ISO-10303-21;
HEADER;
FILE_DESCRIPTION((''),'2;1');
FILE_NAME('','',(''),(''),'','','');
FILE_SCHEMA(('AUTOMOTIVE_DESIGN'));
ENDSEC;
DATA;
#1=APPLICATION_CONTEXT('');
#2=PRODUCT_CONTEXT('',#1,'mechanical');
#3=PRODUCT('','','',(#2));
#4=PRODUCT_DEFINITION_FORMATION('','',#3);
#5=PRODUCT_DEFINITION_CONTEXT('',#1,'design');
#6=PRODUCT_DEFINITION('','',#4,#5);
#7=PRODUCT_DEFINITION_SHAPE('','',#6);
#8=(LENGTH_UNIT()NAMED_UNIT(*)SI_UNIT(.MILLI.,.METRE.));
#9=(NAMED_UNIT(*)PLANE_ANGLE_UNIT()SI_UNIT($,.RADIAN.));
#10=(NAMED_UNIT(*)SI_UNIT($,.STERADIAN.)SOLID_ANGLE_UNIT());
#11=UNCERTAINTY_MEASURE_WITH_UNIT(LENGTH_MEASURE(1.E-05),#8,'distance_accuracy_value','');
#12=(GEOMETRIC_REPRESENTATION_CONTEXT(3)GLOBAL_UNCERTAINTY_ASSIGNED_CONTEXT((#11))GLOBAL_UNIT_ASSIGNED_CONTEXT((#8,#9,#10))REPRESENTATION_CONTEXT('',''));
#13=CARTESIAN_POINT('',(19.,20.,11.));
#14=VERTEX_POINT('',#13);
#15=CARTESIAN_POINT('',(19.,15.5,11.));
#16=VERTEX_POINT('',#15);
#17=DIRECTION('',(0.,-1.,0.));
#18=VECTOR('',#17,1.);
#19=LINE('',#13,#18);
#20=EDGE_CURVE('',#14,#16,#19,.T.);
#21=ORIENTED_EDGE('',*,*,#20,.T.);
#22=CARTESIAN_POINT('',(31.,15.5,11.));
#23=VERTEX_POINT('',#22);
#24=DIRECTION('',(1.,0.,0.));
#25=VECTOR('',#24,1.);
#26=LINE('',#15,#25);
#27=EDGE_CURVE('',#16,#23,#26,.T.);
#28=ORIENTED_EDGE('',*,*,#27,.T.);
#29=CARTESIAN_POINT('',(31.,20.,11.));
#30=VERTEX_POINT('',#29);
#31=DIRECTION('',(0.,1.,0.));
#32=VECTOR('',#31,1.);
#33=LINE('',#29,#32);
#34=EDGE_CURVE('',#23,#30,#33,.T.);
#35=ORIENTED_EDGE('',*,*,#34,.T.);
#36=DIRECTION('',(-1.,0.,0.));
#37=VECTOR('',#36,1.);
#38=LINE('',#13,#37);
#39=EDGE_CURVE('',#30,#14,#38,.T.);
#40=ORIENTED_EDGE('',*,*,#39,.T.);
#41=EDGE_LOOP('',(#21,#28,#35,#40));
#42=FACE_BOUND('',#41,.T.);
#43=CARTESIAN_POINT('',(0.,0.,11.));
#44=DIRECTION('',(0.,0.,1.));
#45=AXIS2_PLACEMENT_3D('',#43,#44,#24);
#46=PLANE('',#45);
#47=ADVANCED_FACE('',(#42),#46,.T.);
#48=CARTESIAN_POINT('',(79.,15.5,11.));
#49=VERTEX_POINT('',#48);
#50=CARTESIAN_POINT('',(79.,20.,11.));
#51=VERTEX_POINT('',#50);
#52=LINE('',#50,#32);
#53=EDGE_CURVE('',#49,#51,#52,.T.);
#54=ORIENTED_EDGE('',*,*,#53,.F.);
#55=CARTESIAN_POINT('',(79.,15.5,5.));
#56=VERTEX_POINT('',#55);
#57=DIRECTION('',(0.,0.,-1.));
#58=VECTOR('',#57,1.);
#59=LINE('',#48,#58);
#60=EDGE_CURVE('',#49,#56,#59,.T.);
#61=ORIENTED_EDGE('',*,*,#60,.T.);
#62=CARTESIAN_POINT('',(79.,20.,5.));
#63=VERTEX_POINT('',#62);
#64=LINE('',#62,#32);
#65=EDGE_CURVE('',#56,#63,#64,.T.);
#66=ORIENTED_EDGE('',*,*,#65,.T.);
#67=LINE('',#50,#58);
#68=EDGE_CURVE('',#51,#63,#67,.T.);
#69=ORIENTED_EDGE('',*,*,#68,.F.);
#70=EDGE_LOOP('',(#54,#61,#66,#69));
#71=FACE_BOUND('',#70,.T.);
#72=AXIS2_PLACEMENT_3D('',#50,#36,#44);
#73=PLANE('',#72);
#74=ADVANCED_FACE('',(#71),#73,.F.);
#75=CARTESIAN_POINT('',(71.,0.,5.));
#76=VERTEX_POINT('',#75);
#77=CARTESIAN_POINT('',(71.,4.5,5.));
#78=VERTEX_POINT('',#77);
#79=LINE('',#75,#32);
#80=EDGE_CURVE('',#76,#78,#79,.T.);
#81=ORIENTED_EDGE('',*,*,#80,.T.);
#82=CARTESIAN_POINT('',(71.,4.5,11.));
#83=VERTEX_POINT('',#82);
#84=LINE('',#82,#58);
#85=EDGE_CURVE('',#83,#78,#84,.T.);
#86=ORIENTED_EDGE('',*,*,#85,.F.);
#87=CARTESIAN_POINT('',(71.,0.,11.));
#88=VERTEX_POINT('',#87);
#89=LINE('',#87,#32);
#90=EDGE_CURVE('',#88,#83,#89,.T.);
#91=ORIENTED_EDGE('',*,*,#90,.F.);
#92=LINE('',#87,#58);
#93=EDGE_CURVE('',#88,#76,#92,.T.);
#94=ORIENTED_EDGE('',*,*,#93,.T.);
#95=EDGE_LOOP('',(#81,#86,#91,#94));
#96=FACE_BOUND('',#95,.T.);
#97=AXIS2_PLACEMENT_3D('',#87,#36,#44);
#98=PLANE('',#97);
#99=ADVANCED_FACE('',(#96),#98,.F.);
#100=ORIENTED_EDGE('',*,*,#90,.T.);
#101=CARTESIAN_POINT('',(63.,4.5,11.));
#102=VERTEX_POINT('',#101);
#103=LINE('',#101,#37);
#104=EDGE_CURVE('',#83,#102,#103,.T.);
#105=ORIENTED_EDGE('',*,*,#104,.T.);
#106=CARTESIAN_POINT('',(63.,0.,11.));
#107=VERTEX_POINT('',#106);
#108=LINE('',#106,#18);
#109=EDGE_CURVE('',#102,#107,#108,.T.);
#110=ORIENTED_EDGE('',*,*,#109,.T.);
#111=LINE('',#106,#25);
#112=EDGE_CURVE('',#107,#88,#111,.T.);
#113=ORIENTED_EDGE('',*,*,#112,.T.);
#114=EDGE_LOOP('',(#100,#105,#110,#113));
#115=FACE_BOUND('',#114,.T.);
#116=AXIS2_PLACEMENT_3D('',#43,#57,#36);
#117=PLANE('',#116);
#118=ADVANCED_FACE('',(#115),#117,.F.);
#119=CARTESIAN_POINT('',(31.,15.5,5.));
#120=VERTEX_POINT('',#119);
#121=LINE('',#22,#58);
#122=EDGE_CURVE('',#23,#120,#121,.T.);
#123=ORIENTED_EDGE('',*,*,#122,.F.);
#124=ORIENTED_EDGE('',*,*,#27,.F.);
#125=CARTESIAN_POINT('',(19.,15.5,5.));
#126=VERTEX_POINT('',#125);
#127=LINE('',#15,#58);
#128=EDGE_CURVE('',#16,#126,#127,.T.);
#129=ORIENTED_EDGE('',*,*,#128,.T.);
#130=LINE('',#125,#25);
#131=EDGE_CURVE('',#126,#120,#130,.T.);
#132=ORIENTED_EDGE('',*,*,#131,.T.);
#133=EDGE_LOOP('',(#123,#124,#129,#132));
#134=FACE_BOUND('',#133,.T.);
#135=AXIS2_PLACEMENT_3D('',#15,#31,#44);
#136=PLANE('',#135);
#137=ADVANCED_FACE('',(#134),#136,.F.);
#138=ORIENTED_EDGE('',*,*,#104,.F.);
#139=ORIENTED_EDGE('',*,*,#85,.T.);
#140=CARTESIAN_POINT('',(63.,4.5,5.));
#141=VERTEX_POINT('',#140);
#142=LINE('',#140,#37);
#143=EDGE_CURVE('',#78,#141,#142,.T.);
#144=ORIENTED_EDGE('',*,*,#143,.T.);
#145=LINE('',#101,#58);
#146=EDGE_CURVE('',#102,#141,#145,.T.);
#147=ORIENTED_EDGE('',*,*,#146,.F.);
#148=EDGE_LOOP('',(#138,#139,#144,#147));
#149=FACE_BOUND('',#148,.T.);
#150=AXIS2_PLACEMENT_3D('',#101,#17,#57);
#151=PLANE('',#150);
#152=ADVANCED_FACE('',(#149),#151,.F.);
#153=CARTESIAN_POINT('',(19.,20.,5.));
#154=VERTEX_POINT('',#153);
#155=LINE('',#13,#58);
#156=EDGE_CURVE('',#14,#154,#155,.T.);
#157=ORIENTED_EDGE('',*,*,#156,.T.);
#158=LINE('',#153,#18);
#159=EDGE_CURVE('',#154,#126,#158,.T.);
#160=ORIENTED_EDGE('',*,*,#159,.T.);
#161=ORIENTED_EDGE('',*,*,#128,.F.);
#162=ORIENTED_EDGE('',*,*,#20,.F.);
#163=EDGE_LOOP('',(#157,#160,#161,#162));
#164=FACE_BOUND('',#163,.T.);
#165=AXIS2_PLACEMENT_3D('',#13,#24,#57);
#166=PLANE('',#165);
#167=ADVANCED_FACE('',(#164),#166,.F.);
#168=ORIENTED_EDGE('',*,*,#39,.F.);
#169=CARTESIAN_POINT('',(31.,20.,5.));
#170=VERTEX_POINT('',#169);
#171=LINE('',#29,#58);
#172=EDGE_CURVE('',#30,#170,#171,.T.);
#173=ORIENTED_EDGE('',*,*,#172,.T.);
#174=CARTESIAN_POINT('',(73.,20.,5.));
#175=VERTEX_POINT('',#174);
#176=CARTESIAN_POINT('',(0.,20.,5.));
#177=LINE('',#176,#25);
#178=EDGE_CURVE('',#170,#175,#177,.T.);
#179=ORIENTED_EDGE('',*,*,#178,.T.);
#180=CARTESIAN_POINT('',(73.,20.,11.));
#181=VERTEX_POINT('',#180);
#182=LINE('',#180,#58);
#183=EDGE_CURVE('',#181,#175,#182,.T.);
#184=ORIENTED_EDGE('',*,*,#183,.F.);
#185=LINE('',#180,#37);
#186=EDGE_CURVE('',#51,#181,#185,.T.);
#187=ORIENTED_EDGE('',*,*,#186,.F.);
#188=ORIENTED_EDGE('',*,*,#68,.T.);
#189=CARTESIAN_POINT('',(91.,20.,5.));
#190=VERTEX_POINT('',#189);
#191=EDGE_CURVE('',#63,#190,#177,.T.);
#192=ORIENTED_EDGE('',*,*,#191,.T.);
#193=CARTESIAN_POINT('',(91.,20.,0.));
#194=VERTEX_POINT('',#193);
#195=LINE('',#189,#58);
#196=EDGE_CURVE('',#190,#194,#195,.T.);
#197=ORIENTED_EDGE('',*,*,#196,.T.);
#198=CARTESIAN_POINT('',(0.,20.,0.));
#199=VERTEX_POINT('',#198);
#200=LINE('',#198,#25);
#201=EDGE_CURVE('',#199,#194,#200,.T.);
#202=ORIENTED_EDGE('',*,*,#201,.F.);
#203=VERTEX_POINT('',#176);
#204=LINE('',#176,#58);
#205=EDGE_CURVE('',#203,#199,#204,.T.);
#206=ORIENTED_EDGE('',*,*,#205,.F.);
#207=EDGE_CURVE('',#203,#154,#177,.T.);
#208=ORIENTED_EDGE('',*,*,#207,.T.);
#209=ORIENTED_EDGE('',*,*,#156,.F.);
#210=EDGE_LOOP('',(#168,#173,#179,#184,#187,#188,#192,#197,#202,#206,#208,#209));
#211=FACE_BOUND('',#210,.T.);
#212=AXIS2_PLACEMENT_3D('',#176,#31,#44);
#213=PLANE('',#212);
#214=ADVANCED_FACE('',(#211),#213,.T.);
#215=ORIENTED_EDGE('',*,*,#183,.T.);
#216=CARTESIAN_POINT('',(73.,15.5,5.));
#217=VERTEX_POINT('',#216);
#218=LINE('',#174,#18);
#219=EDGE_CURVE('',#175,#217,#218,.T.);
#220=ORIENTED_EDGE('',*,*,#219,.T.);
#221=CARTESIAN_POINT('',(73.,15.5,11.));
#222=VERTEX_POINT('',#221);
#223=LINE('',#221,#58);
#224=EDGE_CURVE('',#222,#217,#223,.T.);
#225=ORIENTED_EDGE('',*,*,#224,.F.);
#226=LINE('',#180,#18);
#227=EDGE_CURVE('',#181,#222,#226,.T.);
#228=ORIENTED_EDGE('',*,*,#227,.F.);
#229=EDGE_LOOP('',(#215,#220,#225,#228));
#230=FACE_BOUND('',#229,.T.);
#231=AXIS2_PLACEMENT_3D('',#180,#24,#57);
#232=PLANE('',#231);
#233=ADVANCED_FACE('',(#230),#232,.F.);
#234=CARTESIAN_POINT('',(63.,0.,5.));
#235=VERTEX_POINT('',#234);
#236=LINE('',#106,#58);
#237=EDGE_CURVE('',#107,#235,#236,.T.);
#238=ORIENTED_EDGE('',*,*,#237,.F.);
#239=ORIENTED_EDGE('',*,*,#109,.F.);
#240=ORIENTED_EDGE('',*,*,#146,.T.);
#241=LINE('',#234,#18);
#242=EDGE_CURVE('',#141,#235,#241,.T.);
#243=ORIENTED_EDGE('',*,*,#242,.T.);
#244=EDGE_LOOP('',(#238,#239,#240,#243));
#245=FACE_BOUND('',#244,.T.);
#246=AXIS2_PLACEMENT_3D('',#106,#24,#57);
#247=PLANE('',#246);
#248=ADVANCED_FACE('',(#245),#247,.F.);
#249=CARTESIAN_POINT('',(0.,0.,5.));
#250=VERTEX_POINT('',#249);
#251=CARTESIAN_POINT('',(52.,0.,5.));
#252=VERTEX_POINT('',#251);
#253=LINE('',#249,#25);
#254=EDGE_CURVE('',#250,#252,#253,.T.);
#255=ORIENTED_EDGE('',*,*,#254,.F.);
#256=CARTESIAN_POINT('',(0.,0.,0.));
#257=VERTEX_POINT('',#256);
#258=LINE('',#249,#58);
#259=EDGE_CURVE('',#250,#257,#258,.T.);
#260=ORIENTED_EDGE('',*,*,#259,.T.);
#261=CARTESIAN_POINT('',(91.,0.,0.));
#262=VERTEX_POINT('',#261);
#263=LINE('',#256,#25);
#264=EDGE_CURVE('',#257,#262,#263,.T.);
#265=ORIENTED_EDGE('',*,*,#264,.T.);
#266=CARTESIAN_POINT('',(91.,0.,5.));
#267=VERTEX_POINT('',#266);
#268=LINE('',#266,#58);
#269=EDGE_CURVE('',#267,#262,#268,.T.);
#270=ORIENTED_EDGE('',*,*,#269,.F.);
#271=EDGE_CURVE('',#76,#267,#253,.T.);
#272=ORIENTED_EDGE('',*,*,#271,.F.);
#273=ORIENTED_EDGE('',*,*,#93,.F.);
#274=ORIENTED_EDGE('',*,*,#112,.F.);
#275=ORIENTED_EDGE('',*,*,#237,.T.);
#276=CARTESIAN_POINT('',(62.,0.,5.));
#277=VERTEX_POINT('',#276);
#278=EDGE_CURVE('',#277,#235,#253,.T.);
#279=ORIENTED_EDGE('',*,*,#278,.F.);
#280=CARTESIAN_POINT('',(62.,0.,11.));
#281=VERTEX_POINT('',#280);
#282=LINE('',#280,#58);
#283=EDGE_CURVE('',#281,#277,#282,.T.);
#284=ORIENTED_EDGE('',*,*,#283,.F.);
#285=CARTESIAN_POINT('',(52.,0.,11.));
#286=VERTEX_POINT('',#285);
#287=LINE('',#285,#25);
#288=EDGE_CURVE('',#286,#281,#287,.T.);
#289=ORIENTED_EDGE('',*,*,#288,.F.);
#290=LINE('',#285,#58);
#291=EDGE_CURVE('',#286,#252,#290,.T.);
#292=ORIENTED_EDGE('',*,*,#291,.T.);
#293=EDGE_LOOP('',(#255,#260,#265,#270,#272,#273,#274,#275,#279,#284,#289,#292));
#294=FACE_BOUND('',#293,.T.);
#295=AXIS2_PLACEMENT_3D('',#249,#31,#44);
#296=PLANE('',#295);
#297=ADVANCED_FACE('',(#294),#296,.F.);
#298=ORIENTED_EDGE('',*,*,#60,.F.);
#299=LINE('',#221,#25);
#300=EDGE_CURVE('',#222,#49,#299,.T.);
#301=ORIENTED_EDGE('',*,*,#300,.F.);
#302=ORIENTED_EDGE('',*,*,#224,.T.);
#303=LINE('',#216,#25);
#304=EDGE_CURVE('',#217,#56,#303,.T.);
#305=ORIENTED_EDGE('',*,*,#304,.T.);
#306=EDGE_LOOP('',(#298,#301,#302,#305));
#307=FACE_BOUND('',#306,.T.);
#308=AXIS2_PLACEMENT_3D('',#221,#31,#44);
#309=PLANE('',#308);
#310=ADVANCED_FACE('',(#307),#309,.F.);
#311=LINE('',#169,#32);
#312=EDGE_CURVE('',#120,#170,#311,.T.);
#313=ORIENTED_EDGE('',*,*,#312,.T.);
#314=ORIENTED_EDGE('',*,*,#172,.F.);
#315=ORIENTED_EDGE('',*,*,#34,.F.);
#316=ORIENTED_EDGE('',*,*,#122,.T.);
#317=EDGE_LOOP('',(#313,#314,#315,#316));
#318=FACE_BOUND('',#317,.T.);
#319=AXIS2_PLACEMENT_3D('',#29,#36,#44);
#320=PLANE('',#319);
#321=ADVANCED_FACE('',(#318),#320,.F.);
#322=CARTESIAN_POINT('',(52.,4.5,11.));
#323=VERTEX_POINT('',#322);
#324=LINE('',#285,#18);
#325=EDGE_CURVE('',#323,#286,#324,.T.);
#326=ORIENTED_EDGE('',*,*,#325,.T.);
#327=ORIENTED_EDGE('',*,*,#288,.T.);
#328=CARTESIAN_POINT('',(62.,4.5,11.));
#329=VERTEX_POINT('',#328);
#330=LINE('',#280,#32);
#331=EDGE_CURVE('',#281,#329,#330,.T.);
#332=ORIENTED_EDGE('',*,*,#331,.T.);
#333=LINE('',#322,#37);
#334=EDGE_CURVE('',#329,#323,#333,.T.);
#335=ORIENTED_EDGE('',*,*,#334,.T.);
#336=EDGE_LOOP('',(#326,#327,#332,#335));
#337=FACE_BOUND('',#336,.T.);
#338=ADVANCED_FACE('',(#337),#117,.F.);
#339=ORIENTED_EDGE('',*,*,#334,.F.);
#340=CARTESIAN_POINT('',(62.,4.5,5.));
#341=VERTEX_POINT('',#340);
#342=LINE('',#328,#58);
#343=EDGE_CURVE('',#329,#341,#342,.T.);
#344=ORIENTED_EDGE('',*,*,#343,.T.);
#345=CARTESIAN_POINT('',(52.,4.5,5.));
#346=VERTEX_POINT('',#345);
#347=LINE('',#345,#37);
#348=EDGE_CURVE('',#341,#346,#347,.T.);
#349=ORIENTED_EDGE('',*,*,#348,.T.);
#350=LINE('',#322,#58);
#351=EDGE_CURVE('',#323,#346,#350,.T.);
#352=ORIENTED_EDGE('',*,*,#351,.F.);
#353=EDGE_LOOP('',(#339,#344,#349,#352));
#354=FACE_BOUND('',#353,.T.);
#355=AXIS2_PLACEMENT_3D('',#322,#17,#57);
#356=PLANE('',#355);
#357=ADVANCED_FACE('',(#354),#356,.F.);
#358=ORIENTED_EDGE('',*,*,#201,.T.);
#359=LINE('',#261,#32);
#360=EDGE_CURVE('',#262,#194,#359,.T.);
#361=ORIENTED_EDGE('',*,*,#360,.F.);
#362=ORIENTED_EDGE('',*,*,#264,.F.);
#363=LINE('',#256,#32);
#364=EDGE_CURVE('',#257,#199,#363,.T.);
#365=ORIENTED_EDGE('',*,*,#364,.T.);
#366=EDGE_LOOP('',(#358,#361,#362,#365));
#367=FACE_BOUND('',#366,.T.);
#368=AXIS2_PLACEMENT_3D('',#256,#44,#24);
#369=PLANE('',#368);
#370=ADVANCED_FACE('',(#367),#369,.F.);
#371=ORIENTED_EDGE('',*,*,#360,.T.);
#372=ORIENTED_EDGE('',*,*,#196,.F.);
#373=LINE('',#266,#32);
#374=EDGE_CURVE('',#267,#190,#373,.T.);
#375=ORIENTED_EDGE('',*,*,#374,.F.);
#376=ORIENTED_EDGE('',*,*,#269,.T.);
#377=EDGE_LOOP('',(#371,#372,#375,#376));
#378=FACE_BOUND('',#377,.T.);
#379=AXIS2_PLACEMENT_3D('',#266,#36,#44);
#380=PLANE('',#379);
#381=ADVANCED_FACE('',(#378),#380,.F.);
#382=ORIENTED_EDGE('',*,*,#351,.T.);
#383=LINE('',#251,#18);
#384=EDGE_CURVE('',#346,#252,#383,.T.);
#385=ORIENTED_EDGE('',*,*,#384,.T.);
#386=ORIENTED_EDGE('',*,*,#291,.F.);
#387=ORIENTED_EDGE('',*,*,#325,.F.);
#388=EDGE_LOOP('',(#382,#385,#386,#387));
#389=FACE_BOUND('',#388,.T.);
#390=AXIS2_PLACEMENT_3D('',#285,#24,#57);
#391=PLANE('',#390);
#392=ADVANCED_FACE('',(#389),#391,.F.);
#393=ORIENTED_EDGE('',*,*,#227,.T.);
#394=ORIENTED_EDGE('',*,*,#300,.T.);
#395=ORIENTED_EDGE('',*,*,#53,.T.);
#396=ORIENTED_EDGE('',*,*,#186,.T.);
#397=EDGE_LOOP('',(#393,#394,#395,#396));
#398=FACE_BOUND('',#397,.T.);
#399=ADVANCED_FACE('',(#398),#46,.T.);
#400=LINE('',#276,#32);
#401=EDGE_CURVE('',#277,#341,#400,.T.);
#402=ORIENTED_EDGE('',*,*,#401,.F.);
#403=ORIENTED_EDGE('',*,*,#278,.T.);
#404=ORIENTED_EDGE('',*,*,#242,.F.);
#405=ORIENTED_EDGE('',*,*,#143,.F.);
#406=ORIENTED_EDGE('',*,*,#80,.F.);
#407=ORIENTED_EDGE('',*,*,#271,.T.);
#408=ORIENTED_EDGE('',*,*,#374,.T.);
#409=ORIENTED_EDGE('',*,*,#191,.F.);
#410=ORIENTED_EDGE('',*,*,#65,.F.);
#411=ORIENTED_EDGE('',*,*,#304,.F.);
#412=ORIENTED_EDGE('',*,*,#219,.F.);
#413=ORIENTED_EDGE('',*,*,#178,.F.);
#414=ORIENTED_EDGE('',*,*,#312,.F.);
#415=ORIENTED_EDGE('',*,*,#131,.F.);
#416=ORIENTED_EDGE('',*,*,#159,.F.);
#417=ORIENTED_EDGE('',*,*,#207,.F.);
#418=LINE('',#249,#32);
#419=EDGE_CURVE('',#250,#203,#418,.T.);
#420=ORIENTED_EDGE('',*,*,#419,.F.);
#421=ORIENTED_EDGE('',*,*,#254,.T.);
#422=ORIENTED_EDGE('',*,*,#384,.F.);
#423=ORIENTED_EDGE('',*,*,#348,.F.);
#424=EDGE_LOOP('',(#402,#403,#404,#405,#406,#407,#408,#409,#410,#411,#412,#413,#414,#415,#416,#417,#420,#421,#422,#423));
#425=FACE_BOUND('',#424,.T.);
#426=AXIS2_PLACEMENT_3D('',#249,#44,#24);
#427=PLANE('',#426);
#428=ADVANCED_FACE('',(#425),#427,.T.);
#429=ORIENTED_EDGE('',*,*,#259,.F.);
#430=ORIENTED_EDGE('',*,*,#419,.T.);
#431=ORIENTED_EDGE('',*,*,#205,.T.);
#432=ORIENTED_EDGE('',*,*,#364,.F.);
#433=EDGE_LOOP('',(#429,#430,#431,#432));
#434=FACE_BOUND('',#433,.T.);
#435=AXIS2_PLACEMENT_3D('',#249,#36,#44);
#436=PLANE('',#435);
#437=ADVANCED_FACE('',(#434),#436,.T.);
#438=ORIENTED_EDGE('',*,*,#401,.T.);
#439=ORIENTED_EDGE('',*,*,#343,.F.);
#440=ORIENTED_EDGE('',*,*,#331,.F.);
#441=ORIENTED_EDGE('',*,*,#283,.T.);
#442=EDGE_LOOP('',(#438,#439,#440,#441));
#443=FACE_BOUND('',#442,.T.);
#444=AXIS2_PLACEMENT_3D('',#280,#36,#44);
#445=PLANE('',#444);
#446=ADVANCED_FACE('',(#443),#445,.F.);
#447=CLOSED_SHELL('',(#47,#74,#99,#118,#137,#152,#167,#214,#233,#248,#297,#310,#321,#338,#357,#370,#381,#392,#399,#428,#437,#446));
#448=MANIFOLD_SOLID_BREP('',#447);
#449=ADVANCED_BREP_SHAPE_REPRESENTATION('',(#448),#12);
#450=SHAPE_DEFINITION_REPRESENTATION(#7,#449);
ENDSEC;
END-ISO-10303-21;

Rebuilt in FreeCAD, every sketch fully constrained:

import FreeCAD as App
import Part
import Sketcher

V = App.Vector


def add_polygon(sketch, points):
    """Adds a closed chain of lines whose ends are joined by coincident constraints."""
    first, n = sketch.GeometryCount, len(points)
    for a, b in zip(points, points[1:] + points[:1]):
        sketch.addGeometry(Part.LineSegment(App.Vector(*a, 0), App.Vector(*b, 0)), False)
    for i in range(n):
        sketch.addConstraint(Sketcher.Constraint("Coincident", first + i, 2, first + (i + 1) % n, 1))

doc = App.newDocument("Part")
params = doc.addObject("Spreadsheet::Sheet", "Params")
for row, (alias, value) in enumerate([
    ("sketch1_width", "91 mm"),
    ("sketch1_height", "20 mm"),
    ("pad1_length", "5 mm"),
    ("sketch2_width", "12 mm"),
    ("sketch2_width2", "6 mm"),
    ("sketch2_width3", "10 mm"),
    ("sketch2_width4", "8 mm"),
    ("sketch2_height", "4.5 mm"),
    ("pad2_length", "6 mm"),
], start=1):
    params.set(f"A{row}", alias)
    params.set(f"B{row}", "=" + value)
    params.setAlias(f"B{row}", alias)

body = doc.addObject("PartDesign::Body", "Body")

# Sketch on XY plane
sketch1 = body.newObject("Sketcher::SketchObject", "Sketch")
sketch1.AttachmentSupport = (doc.getObject("XY_Plane"), [""])
sketch1.MapMode = "FlatFace"
add_polygon(sketch1, [(0, 20), (0, 0), (91, 0), (91, 20)])  # lines 0-3
sketch1.addConstraint([
    Sketcher.Constraint("Vertical", 0),
    Sketcher.Constraint("Horizontal", 1),
    Sketcher.Constraint("Vertical", 2),
    Sketcher.Constraint("Horizontal", 3),
    Sketcher.Constraint("Coincident", 0, 2, -1, 1),
    Sketcher.Constraint("DistanceX", 1, 1, 1, 2, 91.0),
    Sketcher.Constraint("DistanceY", 0, 2, 0, 1, 20.0),
])
sketch1.setExpression("Constraints[9]", "Params.sketch1_width")
sketch1.setExpression("Constraints[10]", "Params.sketch1_height")
pad1 = body.newObject("PartDesign::Pad", "Pad")
pad1.Profile = sketch1
pad1.setExpression("Length", "Params.pad1_length")

# Sketch on XY plane
sketch2 = body.newObject("Sketcher::SketchObject", "Sketch001")
sketch2.AttachmentSupport = (doc.getObject("XY_Plane"), [""])
sketch2.MapMode = "FlatFace"
sketch2.AttachmentOffset = App.Placement(V(0, 0, 5), App.Rotation())
add_polygon(sketch2, [(19, 20), (19, 15.5), (31, 15.5), (31, 20)])  # lines 0-3
add_polygon(sketch2, [(73, 20), (73, 15.5), (79, 15.5), (79, 20)])  # lines 4-7
add_polygon(sketch2, [(52, 4.5), (52, 0), (62, 0), (62, 4.5)])  # lines 8-11
add_polygon(sketch2, [(63, 4.5), (63, 0), (71, 0), (71, 4.5)])  # lines 12-15
sketch2.addConstraint([
    Sketcher.Constraint("Vertical", 0),
    Sketcher.Constraint("Horizontal", 1),
    Sketcher.Constraint("Vertical", 2),
    Sketcher.Constraint("Horizontal", 3),
    Sketcher.Constraint("Vertical", 4),
    Sketcher.Constraint("Horizontal", 5),
    Sketcher.Constraint("Vertical", 6),
    Sketcher.Constraint("Horizontal", 7),
    Sketcher.Constraint("Vertical", 8),
    Sketcher.Constraint("Horizontal", 9),
    Sketcher.Constraint("Vertical", 10),
    Sketcher.Constraint("Horizontal", 11),
    Sketcher.Constraint("Vertical", 12),
    Sketcher.Constraint("Horizontal", 13),
    Sketcher.Constraint("Vertical", 14),
    Sketcher.Constraint("Horizontal", 15),
    Sketcher.Constraint("PointOnObject", 8, 2, -1),
    Sketcher.Constraint("PointOnObject", 12, 2, -1),
    Sketcher.Constraint("Horizontal", 1, 2, 4, 2),
    Sketcher.Constraint("Horizontal", 3, 2, 6, 2),
    Sketcher.Constraint("Horizontal", 11, 2, 14, 2),
    Sketcher.Constraint("Equal", 6, 8),
    Sketcher.Constraint("DistanceX", 1, 1, 1, 2, 12.0),
    Sketcher.Constraint("DistanceX", 5, 1, 5, 2, 6.0),
    Sketcher.Constraint("DistanceX", 9, 1, 9, 2, 10.0),
    Sketcher.Constraint("DistanceX", 13, 1, 13, 2, 8.0),
    Sketcher.Constraint("DistanceY", 0, 2, 0, 1, 4.5),
    Sketcher.Constraint("DistanceX", -1, 1, 0, 2, 19.0),
    Sketcher.Constraint("DistanceY", -1, 1, 2, 2, 20.0),
    Sketcher.Constraint("DistanceX", -1, 1, 4, 2, 73.0),
    Sketcher.Constraint("DistanceX", -1, 1, 8, 2, 52.0),
    Sketcher.Constraint("DistanceX", -1, 1, 12, 2, 63.0),
])
sketch2.setExpression("Constraints[38]", "Params.sketch2_width")
sketch2.setExpression("Constraints[39]", "Params.sketch2_width2")
sketch2.setExpression("Constraints[40]", "Params.sketch2_width3")
sketch2.setExpression("Constraints[41]", "Params.sketch2_width4")
sketch2.setExpression("Constraints[42]", "Params.sketch2_height")
pad2 = body.newObject("PartDesign::Pad", "Pad001")
pad2.Profile = sketch2
pad2.setExpression("Length", "Params.pad2_length")

doc.recompute()
